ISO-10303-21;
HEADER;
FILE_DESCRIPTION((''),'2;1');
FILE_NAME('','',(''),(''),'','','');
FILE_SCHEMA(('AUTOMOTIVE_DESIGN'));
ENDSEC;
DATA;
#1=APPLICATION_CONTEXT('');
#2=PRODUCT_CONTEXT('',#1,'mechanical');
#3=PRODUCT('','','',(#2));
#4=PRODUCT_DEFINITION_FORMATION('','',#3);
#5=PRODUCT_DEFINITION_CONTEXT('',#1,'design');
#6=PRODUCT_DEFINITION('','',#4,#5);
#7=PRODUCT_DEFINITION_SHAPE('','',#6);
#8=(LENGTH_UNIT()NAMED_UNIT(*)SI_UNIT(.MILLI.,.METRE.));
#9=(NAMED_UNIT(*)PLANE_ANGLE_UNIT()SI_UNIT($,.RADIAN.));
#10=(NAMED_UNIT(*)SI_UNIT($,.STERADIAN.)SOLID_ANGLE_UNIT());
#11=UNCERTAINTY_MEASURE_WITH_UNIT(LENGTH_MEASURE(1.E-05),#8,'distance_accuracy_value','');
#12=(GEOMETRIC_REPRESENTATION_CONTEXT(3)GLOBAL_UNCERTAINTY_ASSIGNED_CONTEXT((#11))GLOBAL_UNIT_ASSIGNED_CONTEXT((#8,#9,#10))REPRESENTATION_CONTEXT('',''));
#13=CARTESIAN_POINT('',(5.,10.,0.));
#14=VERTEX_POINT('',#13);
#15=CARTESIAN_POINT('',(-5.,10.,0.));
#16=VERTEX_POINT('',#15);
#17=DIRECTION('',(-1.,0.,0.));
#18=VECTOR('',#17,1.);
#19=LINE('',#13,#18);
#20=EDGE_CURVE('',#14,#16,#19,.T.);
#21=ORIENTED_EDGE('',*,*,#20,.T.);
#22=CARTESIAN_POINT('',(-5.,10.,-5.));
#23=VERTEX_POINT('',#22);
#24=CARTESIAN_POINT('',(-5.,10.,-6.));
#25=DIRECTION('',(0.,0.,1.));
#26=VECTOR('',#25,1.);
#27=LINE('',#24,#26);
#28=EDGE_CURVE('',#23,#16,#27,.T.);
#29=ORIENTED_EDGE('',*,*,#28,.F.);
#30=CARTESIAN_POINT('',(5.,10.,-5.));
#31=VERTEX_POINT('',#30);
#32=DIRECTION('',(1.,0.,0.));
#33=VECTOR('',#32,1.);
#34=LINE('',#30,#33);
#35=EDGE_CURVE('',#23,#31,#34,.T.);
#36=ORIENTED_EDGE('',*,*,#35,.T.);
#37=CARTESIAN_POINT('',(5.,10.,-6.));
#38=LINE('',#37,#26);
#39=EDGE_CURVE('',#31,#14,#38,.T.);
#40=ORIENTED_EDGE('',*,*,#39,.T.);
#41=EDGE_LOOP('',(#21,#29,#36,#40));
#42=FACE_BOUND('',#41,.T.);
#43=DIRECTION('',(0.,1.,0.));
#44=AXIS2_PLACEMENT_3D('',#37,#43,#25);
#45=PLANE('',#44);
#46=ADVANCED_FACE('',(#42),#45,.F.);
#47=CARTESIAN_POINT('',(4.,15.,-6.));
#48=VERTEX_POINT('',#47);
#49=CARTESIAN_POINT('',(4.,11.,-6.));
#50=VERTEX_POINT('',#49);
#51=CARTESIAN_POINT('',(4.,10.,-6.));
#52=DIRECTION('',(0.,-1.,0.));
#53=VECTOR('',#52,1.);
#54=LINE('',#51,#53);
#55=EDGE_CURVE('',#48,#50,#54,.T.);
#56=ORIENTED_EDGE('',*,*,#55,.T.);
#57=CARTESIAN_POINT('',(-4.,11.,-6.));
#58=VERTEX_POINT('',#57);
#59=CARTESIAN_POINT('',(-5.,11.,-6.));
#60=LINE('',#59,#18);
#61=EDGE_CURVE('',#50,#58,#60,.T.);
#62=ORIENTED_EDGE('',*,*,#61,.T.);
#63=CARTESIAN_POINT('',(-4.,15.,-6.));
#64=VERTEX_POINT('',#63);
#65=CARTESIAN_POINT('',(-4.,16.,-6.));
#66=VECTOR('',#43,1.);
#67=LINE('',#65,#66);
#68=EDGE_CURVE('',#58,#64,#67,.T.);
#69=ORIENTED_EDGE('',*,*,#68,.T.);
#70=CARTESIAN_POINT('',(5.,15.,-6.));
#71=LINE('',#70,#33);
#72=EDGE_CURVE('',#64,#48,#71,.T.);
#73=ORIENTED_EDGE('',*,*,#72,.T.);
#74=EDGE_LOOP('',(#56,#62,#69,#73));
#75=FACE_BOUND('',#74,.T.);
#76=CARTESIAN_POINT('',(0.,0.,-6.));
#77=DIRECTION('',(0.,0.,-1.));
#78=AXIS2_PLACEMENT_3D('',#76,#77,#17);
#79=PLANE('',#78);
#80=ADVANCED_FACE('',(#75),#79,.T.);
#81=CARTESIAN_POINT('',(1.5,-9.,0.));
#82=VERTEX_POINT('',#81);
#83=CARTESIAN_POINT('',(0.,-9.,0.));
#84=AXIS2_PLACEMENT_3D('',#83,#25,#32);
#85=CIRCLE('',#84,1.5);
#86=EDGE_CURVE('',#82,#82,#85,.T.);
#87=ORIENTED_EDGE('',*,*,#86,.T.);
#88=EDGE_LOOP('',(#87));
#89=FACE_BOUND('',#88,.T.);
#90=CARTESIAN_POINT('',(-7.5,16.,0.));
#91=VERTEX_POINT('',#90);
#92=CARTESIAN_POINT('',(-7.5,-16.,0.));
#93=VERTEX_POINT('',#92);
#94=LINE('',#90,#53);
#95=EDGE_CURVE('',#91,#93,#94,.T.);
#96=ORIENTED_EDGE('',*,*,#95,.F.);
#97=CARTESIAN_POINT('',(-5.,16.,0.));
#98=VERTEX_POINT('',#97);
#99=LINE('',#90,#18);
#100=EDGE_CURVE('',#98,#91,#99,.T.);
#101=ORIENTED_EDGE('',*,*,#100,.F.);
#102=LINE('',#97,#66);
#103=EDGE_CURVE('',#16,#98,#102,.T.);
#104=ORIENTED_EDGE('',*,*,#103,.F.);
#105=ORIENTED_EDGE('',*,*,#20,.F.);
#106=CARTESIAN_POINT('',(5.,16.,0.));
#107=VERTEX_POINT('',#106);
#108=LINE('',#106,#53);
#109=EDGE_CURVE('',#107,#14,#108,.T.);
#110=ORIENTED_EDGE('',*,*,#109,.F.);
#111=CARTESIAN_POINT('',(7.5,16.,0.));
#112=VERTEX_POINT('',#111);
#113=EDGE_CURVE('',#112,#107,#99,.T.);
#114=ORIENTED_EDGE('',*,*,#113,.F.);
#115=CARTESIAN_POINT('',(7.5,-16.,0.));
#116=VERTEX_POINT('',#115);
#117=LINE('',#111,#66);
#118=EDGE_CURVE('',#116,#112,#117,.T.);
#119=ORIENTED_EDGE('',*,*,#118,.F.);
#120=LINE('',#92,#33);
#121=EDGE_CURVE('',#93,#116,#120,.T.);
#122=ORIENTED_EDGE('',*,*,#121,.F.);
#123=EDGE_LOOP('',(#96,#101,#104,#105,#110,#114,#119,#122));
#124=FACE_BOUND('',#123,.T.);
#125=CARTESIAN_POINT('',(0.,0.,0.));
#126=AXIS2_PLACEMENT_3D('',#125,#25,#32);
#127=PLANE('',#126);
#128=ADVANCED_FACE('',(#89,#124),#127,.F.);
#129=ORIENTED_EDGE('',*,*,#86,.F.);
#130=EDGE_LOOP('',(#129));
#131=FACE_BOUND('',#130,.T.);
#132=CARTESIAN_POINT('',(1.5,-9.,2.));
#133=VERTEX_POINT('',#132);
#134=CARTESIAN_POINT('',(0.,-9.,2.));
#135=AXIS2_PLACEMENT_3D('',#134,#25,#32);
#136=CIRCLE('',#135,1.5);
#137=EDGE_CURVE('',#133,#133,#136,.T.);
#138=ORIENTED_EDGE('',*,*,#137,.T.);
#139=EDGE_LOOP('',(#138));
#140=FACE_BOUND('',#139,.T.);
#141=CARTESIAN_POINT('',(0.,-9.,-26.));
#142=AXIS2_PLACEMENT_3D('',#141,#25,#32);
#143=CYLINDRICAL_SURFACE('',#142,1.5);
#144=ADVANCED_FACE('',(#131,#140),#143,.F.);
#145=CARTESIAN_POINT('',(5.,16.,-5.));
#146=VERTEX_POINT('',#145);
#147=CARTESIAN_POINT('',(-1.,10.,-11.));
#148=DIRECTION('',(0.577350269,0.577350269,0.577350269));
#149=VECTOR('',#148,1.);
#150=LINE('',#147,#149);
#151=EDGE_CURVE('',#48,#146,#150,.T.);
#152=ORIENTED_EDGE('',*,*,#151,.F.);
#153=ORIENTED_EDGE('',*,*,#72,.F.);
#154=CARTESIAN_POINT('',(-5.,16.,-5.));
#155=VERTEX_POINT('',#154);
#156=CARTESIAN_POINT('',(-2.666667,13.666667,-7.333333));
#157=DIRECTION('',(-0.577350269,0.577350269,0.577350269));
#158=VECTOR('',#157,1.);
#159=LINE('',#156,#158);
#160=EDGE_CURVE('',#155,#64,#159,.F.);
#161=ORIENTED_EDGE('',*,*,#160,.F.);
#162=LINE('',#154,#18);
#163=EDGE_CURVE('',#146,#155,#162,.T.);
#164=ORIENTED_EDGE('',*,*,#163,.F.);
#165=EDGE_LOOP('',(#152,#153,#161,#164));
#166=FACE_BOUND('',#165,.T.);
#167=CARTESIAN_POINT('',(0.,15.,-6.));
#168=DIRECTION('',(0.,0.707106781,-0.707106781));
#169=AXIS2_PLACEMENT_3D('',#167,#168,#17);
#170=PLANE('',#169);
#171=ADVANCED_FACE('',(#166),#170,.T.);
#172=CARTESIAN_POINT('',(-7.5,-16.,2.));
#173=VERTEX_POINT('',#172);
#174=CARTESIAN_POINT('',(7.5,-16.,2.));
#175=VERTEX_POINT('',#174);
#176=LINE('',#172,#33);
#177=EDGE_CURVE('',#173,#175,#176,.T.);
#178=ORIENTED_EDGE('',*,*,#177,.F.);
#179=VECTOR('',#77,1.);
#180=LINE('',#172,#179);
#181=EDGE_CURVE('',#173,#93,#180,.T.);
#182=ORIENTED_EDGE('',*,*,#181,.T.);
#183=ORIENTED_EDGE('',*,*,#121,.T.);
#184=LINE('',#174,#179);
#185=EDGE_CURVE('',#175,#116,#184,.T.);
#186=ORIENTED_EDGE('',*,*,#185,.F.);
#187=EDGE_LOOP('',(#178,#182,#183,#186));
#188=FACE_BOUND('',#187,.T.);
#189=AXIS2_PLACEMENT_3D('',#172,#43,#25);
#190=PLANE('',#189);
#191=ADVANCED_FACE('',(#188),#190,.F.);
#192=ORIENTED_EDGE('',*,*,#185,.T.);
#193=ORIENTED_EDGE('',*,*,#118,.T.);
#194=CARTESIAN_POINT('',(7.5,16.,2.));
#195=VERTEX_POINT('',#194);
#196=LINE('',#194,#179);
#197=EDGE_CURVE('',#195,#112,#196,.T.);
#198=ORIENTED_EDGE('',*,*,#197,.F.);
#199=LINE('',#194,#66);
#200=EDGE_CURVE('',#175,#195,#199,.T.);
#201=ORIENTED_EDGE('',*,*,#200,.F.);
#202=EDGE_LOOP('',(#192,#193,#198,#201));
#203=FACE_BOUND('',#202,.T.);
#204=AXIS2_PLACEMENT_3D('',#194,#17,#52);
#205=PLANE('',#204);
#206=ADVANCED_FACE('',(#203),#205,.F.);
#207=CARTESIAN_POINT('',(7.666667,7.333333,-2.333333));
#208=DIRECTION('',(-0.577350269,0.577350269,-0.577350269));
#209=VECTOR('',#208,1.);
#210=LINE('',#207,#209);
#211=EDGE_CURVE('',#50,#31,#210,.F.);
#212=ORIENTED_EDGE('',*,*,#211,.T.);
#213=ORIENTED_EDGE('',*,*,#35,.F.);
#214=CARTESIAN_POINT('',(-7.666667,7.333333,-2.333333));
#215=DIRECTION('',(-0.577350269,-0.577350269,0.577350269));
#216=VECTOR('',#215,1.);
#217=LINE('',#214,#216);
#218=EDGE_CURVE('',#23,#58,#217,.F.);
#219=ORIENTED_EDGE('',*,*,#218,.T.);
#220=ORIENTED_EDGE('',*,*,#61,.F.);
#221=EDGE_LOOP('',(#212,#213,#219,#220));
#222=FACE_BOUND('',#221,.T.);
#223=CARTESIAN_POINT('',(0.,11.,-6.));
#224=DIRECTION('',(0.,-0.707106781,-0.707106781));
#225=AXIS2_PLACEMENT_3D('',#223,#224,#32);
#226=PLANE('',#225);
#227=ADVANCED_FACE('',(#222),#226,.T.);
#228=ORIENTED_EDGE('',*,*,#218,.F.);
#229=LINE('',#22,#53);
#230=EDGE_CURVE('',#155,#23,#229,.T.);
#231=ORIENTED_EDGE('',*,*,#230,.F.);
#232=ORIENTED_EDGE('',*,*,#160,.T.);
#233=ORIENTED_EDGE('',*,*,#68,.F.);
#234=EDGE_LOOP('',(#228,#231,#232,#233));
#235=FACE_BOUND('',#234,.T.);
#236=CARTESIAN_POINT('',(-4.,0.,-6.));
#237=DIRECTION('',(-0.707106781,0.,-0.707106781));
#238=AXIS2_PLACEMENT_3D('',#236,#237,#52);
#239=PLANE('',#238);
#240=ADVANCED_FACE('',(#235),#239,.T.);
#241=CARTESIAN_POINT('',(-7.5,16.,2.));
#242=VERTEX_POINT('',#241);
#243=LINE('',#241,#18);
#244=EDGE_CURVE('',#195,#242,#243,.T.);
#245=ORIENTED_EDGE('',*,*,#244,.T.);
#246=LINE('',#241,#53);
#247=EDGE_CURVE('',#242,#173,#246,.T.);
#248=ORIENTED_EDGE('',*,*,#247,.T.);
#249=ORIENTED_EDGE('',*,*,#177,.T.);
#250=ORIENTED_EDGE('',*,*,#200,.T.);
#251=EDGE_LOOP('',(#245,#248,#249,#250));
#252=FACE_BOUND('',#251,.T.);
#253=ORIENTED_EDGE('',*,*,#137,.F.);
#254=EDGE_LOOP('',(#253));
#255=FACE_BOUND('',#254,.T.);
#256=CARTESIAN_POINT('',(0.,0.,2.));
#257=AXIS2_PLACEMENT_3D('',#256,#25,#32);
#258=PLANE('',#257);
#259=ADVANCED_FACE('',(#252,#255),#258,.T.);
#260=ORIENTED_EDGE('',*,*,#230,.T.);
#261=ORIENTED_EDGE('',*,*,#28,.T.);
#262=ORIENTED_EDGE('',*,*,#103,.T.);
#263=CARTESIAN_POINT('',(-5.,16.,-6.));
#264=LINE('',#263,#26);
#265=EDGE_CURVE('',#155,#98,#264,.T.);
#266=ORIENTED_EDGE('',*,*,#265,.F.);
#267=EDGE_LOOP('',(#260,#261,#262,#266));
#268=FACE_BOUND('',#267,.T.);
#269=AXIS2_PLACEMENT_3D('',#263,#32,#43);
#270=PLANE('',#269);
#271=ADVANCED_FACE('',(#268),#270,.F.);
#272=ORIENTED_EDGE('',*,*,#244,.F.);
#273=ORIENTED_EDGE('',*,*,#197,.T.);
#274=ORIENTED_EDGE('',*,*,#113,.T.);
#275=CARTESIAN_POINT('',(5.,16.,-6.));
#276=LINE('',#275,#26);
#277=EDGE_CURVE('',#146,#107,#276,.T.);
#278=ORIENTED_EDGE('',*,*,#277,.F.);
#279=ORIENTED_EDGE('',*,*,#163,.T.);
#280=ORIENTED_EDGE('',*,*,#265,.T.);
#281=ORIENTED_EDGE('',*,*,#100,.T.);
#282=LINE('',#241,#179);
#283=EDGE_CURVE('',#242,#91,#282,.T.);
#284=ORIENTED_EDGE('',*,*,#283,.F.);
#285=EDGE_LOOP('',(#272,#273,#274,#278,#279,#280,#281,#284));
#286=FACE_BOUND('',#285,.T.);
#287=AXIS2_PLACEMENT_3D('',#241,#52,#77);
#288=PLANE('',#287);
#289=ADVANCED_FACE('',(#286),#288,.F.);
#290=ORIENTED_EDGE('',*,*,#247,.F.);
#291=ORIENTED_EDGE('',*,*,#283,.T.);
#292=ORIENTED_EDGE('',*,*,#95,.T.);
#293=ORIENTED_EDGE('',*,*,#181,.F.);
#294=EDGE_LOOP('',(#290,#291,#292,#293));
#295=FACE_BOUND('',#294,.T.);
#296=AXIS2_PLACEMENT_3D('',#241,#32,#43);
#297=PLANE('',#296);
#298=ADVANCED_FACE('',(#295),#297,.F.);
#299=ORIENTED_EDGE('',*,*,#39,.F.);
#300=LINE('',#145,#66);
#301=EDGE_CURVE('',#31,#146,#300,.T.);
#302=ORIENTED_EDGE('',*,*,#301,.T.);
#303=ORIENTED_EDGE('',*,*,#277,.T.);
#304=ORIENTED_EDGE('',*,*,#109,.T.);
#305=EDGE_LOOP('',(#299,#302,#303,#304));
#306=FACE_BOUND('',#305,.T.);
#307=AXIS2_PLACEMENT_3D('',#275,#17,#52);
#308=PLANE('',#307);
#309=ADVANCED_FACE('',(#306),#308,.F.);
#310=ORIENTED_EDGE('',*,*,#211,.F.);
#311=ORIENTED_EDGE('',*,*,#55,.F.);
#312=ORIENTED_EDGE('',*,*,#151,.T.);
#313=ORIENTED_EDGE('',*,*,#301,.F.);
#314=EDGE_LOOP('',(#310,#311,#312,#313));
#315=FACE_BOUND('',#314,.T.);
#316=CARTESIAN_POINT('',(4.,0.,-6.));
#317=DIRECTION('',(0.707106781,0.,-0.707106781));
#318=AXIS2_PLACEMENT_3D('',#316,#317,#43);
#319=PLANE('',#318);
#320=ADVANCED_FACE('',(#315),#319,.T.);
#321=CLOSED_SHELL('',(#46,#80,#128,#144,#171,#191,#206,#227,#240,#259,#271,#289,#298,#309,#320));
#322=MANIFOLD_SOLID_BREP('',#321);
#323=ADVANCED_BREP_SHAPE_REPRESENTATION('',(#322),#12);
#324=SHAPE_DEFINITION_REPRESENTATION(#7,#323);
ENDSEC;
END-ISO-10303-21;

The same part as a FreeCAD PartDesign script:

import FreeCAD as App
import Part
import Sketcher

V = App.Vector


def edges_at(feature, points):
    """Names of the edges that pass closest to the given points."""
    edges = feature.Shape.Edges
    near = lambda p: min(range(len(edges)), key=lambda i: edges[i].distToShape(Part.Vertex(*p))[0])
    return sorted({f"Edge{near(p) + 1}" for p in points})

doc = App.newDocument("Part")
body = doc.addObject("PartDesign::Body", "Body")

sketch1 = body.newObject("Sketcher::SketchObject", "Sketch")
sketch1.AttachmentSupport = (doc.getObject("XY_Plane"), [""])
sketch1.MapMode = "FlatFace"
sketch1.addGeometry([
    Part.LineSegment(V(-8, 16, 0), V(-8, -16, 0)),
    Part.LineSegment(V(-8, -16, 0), V(8, -16, 0)),
    Part.LineSegment(V(8, -16, 0), V(8, 16, 0)),
    Part.LineSegment(V(8, 16, 0), V(-8, 16, 0)),
], False)
sketch1.addConstraint([
    Sketcher.Constraint("Coincident", 0, 2, 1, 1),
    Sketcher.Constraint("Coincident", 1, 2, 2, 1),
    Sketcher.Constraint("Coincident", 2, 2, 3, 1),
    Sketcher.Constraint("Coincident", 3, 2, 0, 1),
    Sketcher.Constraint("Vertical", 0),
    Sketcher.Constraint("Horizontal", 1),
    Sketcher.Constraint("Vertical", 2),
    Sketcher.Constraint("Horizontal", 3),
    Sketcher.Constraint("Symmetric", 0, 2, 2, 2, -1, 1),
    Sketcher.Constraint("DistanceX", 1, 1, 1, 2, 15.0),
    Sketcher.Constraint("DistanceY", 0, 2, 0, 1, 32.0),
])
pad1 = body.newObject("PartDesign::Pad", "Pad")
pad1.Profile = sketch1
pad1.Length = 2

sketch2 = body.newObject("Sketcher::SketchObject", "Sketch001")
sketch2.AttachmentSupport = (doc.getObject("XY_Plane"), [""])
sketch2.MapMode = "FlatFace"
sketch2.addGeometry([
    Part.LineSegment(V(5, 16, 0), V(5, 10, 0)),
    Part.LineSegment(V(5, 10, 0), V(-5, 10, 0)),
    Part.LineSegment(V(-5, 10, 0), V(-5, 16, 0)),
    Part.LineSegment(V(-5, 16, 0), V(5, 16, 0)),
], False)
sketch2.addConstraint([
    Sketcher.Constraint("Coincident", 0, 2, 1, 1),
    Sketcher.Constraint("Coincident", 1, 2, 2, 1),
    Sketcher.Constraint("Coincident", 2, 2, 3, 1),
    Sketcher.Constraint("Coincident", 3, 2, 0, 1),
    Sketcher.Constraint("Vertical", 0),
    Sketcher.Constraint("Horizontal", 1),
    Sketcher.Constraint("Vertical", 2),
    Sketcher.Constraint("Horizontal", 3),
    Sketcher.Constraint("DistanceX", 1, 2, 1, 1, 10.0),
    Sketcher.Constraint("DistanceY", 0, 2, 0, 1, 6.0),
    Sketcher.Constraint("DistanceX", -1, 1, 0, 2, 5.0),
    Sketcher.Constraint("DistanceY", -1, 1, 0, 2, 10.0),
])
pad2 = body.newObject("PartDesign::Pad", "Pad001")
pad2.Profile = sketch2
pad2.Length = 6
pad2.Reversed = True
doc.recompute()

chamfer = body.newObject("PartDesign::Chamfer", "Chamfer")
chamfer.Base = (pad2, edges_at(pad2, [
    (0, 10, -6),
    (-5, 13, -6),
    (0, 16, -6),
    (5, 13, -6),
]))
chamfer.Size = 1

sketch3 = body.newObject("Sketcher::SketchObject", "Sketch002")
sketch3.AttachmentSupport = (doc.getObject("XY_Plane"), [""])
sketch3.MapMode = "FlatFace"
sketch3.AttachmentOffset = App.Placement(V(0, 0, 2), App.Rotation())
sketch3.addGeometry(Part.Circle(V(0, -9, 0), V(0, 0, 1), 1.5), False)
sketch3.addConstraint([
    Sketcher.Constraint("PointOnObject", 0, 3, -2),
    Sketcher.Constraint("Diameter", 0, 3.0),
    Sketcher.Constraint("DistanceY", 0, 3, -1, 1, 9.0),
])
pocket1 = body.newObject("PartDesign::Pocket", "Pocket")
pocket1.Profile = sketch3
pocket1.Length = 28

doc.recompute()
